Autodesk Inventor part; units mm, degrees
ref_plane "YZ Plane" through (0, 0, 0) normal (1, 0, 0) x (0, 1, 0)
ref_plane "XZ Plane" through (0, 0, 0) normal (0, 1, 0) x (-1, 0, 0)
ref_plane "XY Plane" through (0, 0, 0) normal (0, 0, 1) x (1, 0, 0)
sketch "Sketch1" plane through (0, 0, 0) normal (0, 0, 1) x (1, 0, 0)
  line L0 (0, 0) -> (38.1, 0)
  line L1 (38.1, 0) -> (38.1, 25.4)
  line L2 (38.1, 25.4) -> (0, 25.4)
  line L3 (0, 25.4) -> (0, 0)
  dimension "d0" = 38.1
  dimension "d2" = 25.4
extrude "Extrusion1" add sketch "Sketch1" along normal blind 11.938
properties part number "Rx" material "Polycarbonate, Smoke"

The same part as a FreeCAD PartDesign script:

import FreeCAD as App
import Part
import Sketcher
Q = App.Units.Quantity


def add_polygon(sketch, points):
    """Adds a closed chain of lines whose ends are joined by coincident constraints."""
    first, n = sketch.GeometryCount, len(points)
    for a, b in zip(points, points[1:] + points[:1]):
        sketch.addGeometry(Part.LineSegment(App.Vector(*a, 0), App.Vector(*b, 0)), False)
    for i in range(n):
        sketch.addConstraint(Sketcher.Constraint("Coincident", first + i, 2, first + (i + 1) % n, 1))

doc = App.newDocument("Part")
body = doc.addObject("PartDesign::Body", "Body")

sketch1 = body.newObject("Sketcher::SketchObject", "Sketch")
sketch1.AttachmentSupport = (doc.getObject("XY_Plane"), [""])
sketch1.MapMode = "FlatFace"
add_polygon(sketch1, [(0, 25.4), (0, 0), (38.1, 0), (38.1, 25.4)])
sketch1.addConstraint([
    Sketcher.Constraint("Vertical", 0),
    Sketcher.Constraint("Horizontal", 1),
    Sketcher.Constraint("Vertical", 2),
    Sketcher.Constraint("Horizontal", 3),
    Sketcher.Constraint("Coincident", 0, 2, -1, 1),
    Sketcher.Constraint("DistanceY", 0, 2, 0, 1, Q("1 in")),
    Sketcher.Constraint("DistanceX", 1, 1, 1, 2, Q("1.5 in")),
])
pad1 = body.newObject("PartDesign::Pad", "Pad")
pad1.Profile = sketch1
pad1.Length = Q("0.47 in")

doc.recompute()
